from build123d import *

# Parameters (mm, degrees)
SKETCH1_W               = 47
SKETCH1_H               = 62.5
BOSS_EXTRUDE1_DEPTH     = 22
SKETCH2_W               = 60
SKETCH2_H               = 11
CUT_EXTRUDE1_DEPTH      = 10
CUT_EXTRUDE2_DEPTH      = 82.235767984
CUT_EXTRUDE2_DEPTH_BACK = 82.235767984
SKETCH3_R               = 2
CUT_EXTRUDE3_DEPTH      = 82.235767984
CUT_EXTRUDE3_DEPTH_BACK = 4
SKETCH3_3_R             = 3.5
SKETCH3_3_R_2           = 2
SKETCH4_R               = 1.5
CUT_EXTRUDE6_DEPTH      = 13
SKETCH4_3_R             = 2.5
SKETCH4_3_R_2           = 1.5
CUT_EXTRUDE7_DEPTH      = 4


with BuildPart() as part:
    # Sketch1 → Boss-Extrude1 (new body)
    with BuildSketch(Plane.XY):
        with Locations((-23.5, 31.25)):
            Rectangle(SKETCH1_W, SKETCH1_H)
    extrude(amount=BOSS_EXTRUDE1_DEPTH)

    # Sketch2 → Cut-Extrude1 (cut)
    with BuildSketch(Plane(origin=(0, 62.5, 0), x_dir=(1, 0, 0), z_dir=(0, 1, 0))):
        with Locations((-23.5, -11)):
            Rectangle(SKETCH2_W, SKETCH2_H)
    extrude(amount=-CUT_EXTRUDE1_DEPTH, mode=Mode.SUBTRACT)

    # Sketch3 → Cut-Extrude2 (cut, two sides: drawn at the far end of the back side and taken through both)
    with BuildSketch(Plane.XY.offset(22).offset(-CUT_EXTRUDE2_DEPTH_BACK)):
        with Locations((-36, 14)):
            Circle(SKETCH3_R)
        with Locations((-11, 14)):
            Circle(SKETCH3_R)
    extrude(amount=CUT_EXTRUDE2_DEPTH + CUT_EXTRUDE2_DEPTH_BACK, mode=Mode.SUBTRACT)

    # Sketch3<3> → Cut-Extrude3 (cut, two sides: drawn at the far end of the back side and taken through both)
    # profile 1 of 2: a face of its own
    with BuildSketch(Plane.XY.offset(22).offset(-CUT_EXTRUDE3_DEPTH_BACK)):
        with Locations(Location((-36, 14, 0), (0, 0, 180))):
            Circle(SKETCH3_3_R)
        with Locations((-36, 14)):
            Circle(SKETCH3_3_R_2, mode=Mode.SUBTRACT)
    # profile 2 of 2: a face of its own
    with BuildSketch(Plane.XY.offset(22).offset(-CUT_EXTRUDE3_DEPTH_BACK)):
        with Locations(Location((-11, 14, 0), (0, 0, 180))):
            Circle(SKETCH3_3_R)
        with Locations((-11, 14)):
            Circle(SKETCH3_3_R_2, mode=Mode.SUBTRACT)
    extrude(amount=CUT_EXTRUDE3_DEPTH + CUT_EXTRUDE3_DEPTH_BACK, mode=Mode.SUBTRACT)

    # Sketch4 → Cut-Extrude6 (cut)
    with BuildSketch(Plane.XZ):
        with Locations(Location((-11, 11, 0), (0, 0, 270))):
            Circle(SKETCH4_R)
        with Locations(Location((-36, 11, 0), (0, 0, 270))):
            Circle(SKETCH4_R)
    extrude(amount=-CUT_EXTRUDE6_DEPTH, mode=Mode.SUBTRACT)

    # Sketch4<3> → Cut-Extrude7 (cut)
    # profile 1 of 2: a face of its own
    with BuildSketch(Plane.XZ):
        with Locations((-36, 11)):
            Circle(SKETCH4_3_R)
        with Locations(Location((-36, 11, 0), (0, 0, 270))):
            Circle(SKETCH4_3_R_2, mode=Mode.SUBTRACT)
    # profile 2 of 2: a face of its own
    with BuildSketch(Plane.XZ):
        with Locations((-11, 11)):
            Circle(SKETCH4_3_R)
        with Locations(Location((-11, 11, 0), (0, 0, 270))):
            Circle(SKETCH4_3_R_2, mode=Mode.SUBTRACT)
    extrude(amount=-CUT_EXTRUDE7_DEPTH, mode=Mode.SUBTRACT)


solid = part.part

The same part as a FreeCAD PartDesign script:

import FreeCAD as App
import Part
import Sketcher

V = App.Vector
Q = App.Units.Quantity


def add_polygon(sketch, points):
    """Adds a closed chain of lines whose ends are joined by coincident constraints."""
    first, n = sketch.GeometryCount, len(points)
    for a, b in zip(points, points[1:] + points[:1]):
        sketch.addGeometry(Part.LineSegment(App.Vector(*a, 0), App.Vector(*b, 0)), False)
    for i in range(n):
        sketch.addConstraint(Sketcher.Constraint("Coincident", first + i, 2, first + (i + 1) % n, 1))

doc = App.newDocument("Part")
body = doc.addObject("PartDesign::Body", "Body")

# Sketch on XY plane
sketch1 = doc.addObject("Sketcher::SketchObject", "Sketch")
body.addObject(sketch1)
sketch1.AttachmentSupport = (doc.XY_Plane, [""])
sketch1.MapMode = "FlatFace"
add_polygon(sketch1, [(-47, 62), (-47, 0), (0, 0), (0, 62)])  # lines 0-3
sketch1.addConstraint([
    Sketcher.Constraint("Vertical", 0),
    Sketcher.Constraint("Horizontal", 1),
    Sketcher.Constraint("Vertical", 2),
    Sketcher.Constraint("Horizontal", 3),
    Sketcher.Constraint("Coincident", 1, 2, -1, 1),
    Sketcher.Constraint("DistanceX", 1, 1, 1, 2, Q("47 mm")),
    Sketcher.Constraint("DistanceY", 0, 2, 0, 1, Q("62.5 mm")),
])
pad1 = doc.addObject("PartDesign::Pad", "Pad")
body.addObject(pad1)
pad1.Profile = sketch1
pad1.Length = 22

# Sketch on XZ plane
sketch2 = doc.addObject("Sketcher::SketchObject", "Sketch001")
body.addObject(sketch2)
sketch2.AttachmentSupport = (doc.XZ_Plane, [""])
sketch2.MapMode = "FlatFace"
sketch2.AttachmentOffset = App.Placement(V(0, 0, -62.5), App.Rotation())
add_polygon(sketch2, [(-54, 6), (-54, 16), (6, 16), (6, 6)])  # lines 0-3
sketch2.addConstraint([
    Sketcher.Constraint("Vertical", 0),
    Sketcher.Constraint("Horizontal", 1),
    Sketcher.Constraint("Vertical", 2),
    Sketcher.Constraint("Horizontal", 3),
    Sketcher.Constraint("DistanceX", 1, 1, 1, 2, Q("60 mm")),
    Sketcher.Constraint("DistanceY", 0, 1, 0, 2, Q("11 mm")),
    Sketcher.Constraint("DistanceX", 0, 2, -1, 1, Q("53.5 mm")),
    Sketcher.Constraint("DistanceY", -1, 1, 0, 2, Q("16.5 mm")),
])
pocket1 = doc.addObject("PartDesign::Pocket", "Pocket")
body.addObject(pocket1)
pocket1.Profile = sketch2
pocket1.Length = 10
pocket1.Reversed = True

# Sketch on XY plane
sketch3 = doc.addObject("Sketcher::SketchObject", "Sketch002")
body.addObject(sketch3)
sketch3.AttachmentSupport = (doc.XY_Plane, [""])
sketch3.MapMode = "FlatFace"
sketch3.AttachmentOffset = App.Placement(V(0, 0, 22), App.Rotation())
sketch3.addGeometry([
    Part.Circle(V(-36, 14, 0), V(0, 0, 1), 2),
    Part.Circle(V(-11, 14, 0), V(0, 0, 1), 2),
], False)
sketch3.addConstraint([
    Sketcher.Constraint("Equal", 0, 1),
    Sketcher.Constraint("Horizontal", 0, 3, 1, 3),
    Sketcher.Constraint("Diameter", 0, Q("4 mm")),
    Sketcher.Constraint("DistanceX", 0, 3, -1, 1, Q("36 mm")),
    Sketcher.Constraint("DistanceY", -1, 1, 0, 3, Q("14 mm")),
    Sketcher.Constraint("DistanceX", 1, 3, -1, 1, Q("11 mm")),
])
pocket2 = doc.addObject("PartDesign::Pocket", "Pocket001")
body.addObject(pocket2)
pocket2.Profile = sketch3
pocket2.Type = "ThroughAll"
pocket2.Midplane = True

# Sketch on XY plane
sketch4 = doc.addObject("Sketcher::SketchObject", "Sketch003")
body.addObject(sketch4)
sketch4.AttachmentSupport = (doc.XY_Plane, [""])
sketch4.MapMode = "FlatFace"
sketch4.AttachmentOffset = App.Placement(V(0, 0, 22), App.Rotation())
sketch4.addGeometry([
    Part.Circle(V(-36, 14, 0), V(0, 0, 1), 3.5),
    Part.Circle(V(-36, 14, 0), V(0, 0, 1), 2),
    Part.Circle(V(-11, 14, 0), V(0, 0, 1), 3.5),
    Part.Circle(V(-11, 14, 0), V(0, 0, 1), 2),
], False)
sketch4.addConstraint([
    Sketcher.Constraint("Coincident", 1, 3, 0, 3),
    Sketcher.Constraint("Coincident", 3, 3, 2, 3),
    Sketcher.Constraint("Equal", 0, 2),
    Sketcher.Constraint("Equal", 1, 3),
    Sketcher.Constraint("Horizontal", 1, 3, 2, 3),
    Sketcher.Constraint("Diameter", 0, Q("7 mm")),
    Sketcher.Constraint("Diameter", 1, Q("4 mm")),
    Sketcher.Constraint("DistanceX", 0, 3, -1, 1, Q("36 mm")),
    Sketcher.Constraint("DistanceY", -1, 1, 0, 3, Q("14 mm")),
    Sketcher.Constraint("DistanceX", 2, 3, -1, 1, Q("11 mm")),
])
pocket3 = doc.addObject("PartDesign::Pocket", "Pocket002")
body.addObject(pocket3)
pocket3.Profile = sketch4
pocket3.Type = "TwoLengths"
pocket3.Length = 82.235768
pocket3.Length2 = 4
pocket3.Reversed = True

# Sketch on XZ plane
sketch5 = doc.addObject("Sketcher::SketchObject", "Sketch004")
body.addObject(sketch5)
sketch5.AttachmentSupport = (doc.XZ_Plane, [""])
sketch5.MapMode = "FlatFace"
sketch5.addGeometry([
    Part.Circle(V(-11, 11, 0), V(0, 0, 1), 1.5),
    Part.Circle(V(-36, 11, 0), V(0, 0, 1), 1.5),
], False)
sketch5.addConstraint([
    Sketcher.Constraint("Equal", 0, 1),
    Sketcher.Constraint("Horizontal", 0, 3, 1, 3),
    Sketcher.Constraint("Diameter", 0, Q("3 mm")),
    Sketcher.Constraint("DistanceX", 0, 3, -1, 1, Q("11 mm")),
    Sketcher.Constraint("DistanceY", -1, 1, 0, 3, Q("11 mm")),
    Sketcher.Constraint("DistanceX", 1, 3, -1, 1, Q("36 mm")),
])
pocket4 = doc.addObject("PartDesign::Pocket", "Pocket003")
body.addObject(pocket4)
pocket4.Profile = sketch5
pocket4.Length = 13

# Sketch on XZ plane
sketch6 = doc.addObject("Sketcher::SketchObject", "Sketch005")
body.addObject(sketch6)
sketch6.AttachmentSupport = (doc.XZ_Plane, [""])
sketch6.MapMode = "FlatFace"
sketch6.addGeometry([
    Part.Circle(V(-36, 11, 0), V(0, 0, 1), 2.5),
    Part.Circle(V(-36, 11, 0), V(0, 0, 1), 1.5),
    Part.Circle(V(-11, 11, 0), V(0, 0, 1), 2.5),
    Part.Circle(V(-11, 11, 0), V(0, 0, 1), 1.5),
], False)
sketch6.addConstraint([
    Sketcher.Constraint("Coincident", 1, 3, 0, 3),
    Sketcher.Constraint("Coincident", 3, 3, 2, 3),
    Sketcher.Constraint("Equal", 0, 2),
    Sketcher.Constraint("Equal", 1, 3),
    Sketcher.Constraint("Horizontal", 1, 3, 2, 3),
    Sketcher.Constraint("Diameter", 0, Q("5 mm")),
    Sketcher.Constraint("Diameter", 1, Q("3 mm")),
    Sketcher.Constraint("DistanceX", 0, 3, -1, 1, Q("36 mm")),
    Sketcher.Constraint("DistanceY", -1, 1, 0, 3, Q("11 mm")),
    Sketcher.Constraint("DistanceX", 2, 3, -1, 1, Q("11 mm")),
])
pocket5 = doc.addObject("PartDesign::Pocket", "Pocket004")
body.addObject(pocket5)
pocket5.Profile = sketch6
pocket5.Length = 4

doc.recompute()
